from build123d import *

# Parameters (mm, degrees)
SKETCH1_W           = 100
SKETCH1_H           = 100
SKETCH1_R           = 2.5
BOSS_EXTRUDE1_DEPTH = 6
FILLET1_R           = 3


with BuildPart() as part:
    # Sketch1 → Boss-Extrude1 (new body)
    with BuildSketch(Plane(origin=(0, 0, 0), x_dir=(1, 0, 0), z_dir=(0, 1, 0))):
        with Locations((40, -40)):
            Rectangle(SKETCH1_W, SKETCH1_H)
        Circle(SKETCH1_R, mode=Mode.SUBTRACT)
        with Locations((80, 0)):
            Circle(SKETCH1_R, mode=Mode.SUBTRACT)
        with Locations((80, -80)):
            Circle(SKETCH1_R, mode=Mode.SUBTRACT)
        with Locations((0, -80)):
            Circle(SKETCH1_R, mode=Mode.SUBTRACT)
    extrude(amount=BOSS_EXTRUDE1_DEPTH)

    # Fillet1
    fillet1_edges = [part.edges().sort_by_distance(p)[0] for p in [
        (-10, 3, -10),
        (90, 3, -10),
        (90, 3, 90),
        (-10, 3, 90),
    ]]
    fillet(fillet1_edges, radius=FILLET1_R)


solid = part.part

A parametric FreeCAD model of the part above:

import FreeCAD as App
import Part
import Sketcher

V = App.Vector


def edges_at(feature, points):
    """Names of the edges that pass closest to the given points."""
    edges = feature.Shape.Edges
    near = lambda p: min(range(len(edges)), key=lambda i: edges[i].distToShape(Part.Vertex(*p))[0])
    return sorted({f"Edge{near(p) + 1}" for p in points})


def add_polygon(sketch, points):
    """Adds a closed chain of lines whose ends are joined by coincident constraints."""
    first, n = sketch.GeometryCount, len(points)
    for a, b in zip(points, points[1:] + points[:1]):
        sketch.addGeometry(Part.LineSegment(App.Vector(*a, 0), App.Vector(*b, 0)), False)
    for i in range(n):
        sketch.addConstraint(Sketcher.Constraint("Coincident", first + i, 2, first + (i + 1) % n, 1))

doc = App.newDocument("Part")
params = doc.addObject("Spreadsheet::Sheet", "Params")
for row, (alias, value) in enumerate([
    ("sketch1_diameter", "5 mm"),
    ("sketch1_width", "100 mm"),
    ("pad1_length", "6 mm"),
    ("fillet_radius", "3 mm"),
], start=1):
    params.set(f"A{row}", alias)
    params.set(f"B{row}", "=" + value)
    params.setAlias(f"B{row}", alias)

body = doc.addObject("PartDesign::Body", "Body")

# Sketch on XZ plane
sketch1 = doc.addObject("Sketcher::SketchObject", "Sketch")
body.addObject(sketch1)
sketch1.AttachmentSupport = (doc.XZ_Plane, [""])
sketch1.MapMode = "FlatFace"
add_polygon(sketch1, [(-10, -10), (-10, 90), (90, 90), (90, -10)])  # lines 0-3
sketch1.addGeometry(Part.Circle(V(0, 80, 0), V(0, 0, 1), 2.5), False)  # 4
sketch1.addGeometry(Part.Circle(V(80, 80, 0), V(0, 0, 1), 2.5), False)  # 5
sketch1.addGeometry(Part.Circle(V(0, 0, 0), V(0, 0, 1), 2.5), False)  # 6
sketch1.addGeometry(Part.Circle(V(80, 0, 0), V(0, 0, 1), 2.5), False)  # 7
sketch1.addConstraint([
    Sketcher.Constraint("Vertical", 0),
    Sketcher.Constraint("Horizontal", 1),
    Sketcher.Constraint("Vertical", 2),
    Sketcher.Constraint("Horizontal", 3),
    Sketcher.Constraint("Coincident", 6, 3, -1, 1),
    Sketcher.Constraint("Equal", 4, 5),
    Sketcher.Constraint("Equal", 5, 6),
    Sketcher.Constraint("Equal", 6, 7),
    Sketcher.Constraint("PointOnObject", 4, 3, -2),
    Sketcher.Constraint("PointOnObject", 7, 3, -1),
    Sketcher.Constraint("Horizontal", 4, 3, 5, 3),
    Sketcher.Constraint("Vertical", 5, 3, 7, 3),
    Sketcher.Constraint("Equal", 3, 0),
    Sketcher.Constraint("Diameter", 4, 5.0),
    Sketcher.Constraint("DistanceX", 1, 1, 1, 2, 100.0),
    Sketcher.Constraint("DistanceY", -1, 1, 4, 3, 80.0),
    Sketcher.Constraint("DistanceX", -1, 1, 5, 3, 80.0),
    Sketcher.Constraint("DistanceX", 0, 2, -1, 1, 10.0),
    Sketcher.Constraint("DistanceY", -1, 1, 0, 2, 90.0),
])
sketch1.setExpression("Constraints[17]", "Params.sketch1_diameter")
sketch1.setExpression("Constraints[18]", "Params.sketch1_width")
pad1 = doc.addObject("PartDesign::Pad", "Pad")
body.addObject(pad1)
pad1.Profile = sketch1
pad1.setExpression("Length", "Params.pad1_length")
pad1.Reversed = True
doc.recompute()

fillet = doc.addObject("PartDesign::Fillet", "Fillet")
body.addObject(fillet)
fillet.Base = (pad1, edges_at(pad1, [
    (-10, 3, -10),
    (90, 3, -10),
    (90, 3, 90),
    (-10, 3, 90),
]))
fillet.setExpression("Radius", "Params.fillet_radius")

doc.recompute()
